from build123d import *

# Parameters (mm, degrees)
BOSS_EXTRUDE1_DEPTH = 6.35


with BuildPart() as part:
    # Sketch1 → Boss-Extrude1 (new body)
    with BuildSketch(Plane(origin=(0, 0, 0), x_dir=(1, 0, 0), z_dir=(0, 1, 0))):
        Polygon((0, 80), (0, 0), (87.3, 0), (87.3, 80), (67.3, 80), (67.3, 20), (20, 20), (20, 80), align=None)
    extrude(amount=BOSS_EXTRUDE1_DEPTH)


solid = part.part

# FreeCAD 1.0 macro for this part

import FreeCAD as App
import Part
import Sketcher

V = App.Vector
Q = App.Units.Quantity

doc = App.newDocument("Part")
params = doc.addObject("Spreadsheet::Sheet", "Params")
for row, (alias, value) in enumerate([
    ("sketch1_width", "20 mm"),
    ("sketch1_height", "80 mm"),
    ("sketch1_height2", "60 mm"),
    ("sketch1_width2", "87.3 mm"),
    ("pad1_length", "6.35 mm"),
], start=1):
    params.set(f"A{row}", alias)
    params.set(f"B{row}", "=" + value)
    params.setAlias(f"B{row}", alias)

body = doc.addObject("PartDesign::Body", "Body")

# Sketch on XZ plane
sketch1 = doc.addObject("Sketcher::SketchObject", "Sketch")
body.addObject(sketch1)
sketch1.AttachmentSupport = (doc.XZ_Plane, [""])
sketch1.MapMode = "FlatFace"
sketch1.addGeometry(Part.LineSegment(V(0, -80, 0), V(0, 0, 0)), False)
sketch1.addGeometry(Part.LineSegment(V(0, 0, 0), V(87.3, 0, 0)), False)
sketch1.addGeometry(Part.LineSegment(V(87.3, 0, 0), V(87.3, -80, 0)), False)
sketch1.addGeometry(Part.LineSegment(V(87.3, -80, 0), V(67.3, -80, 0)), False)
sketch1.addGeometry(Part.LineSegment(V(67.3, -80, 0), V(67.3, -20, 0)), False)
sketch1.addGeometry(Part.LineSegment(V(67.3, -20, 0), V(20, -20, 0)), False)
sketch1.addGeometry(Part.LineSegment(V(20, -20, 0), V(20, -80, 0)), False)
sketch1.addGeometry(Part.LineSegment(V(20, -80, 0), V(0, -80, 0)), False)
sketch1.addConstraint(Sketcher.Constraint("Coincident", 0, 2, 1, 1))
sketch1.addConstraint(Sketcher.Constraint("Coincident", 1, 2, 2, 1))
sketch1.addConstraint(Sketcher.Constraint("Coincident", 2, 2, 3, 1))
sketch1.addConstraint(Sketcher.Constraint("Coincident", 3, 2, 4, 1))
sketch1.addConstraint(Sketcher.Constraint("Coincident", 4, 2, 5, 1))
sketch1.addConstraint(Sketcher.Constraint("Coincident", 5, 2, 6, 1))
sketch1.addConstraint(Sketcher.Constraint("Coincident", 6, 2, 7, 1))
sketch1.addConstraint(Sketcher.Constraint("Coincident", 7, 2, 0, 1))
sketch1.addConstraint(Sketcher.Constraint("Vertical", 0))
sketch1.addConstraint(Sketcher.Constraint("Horizontal", 1))
sketch1.addConstraint(Sketcher.Constraint("Vertical", 2))
sketch1.addConstraint(Sketcher.Constraint("Horizontal", 3))
sketch1.addConstraint(Sketcher.Constraint("Vertical", 4))
sketch1.addConstraint(Sketcher.Constraint("Horizontal", 5))
sketch1.addConstraint(Sketcher.Constraint("Vertical", 6))
sketch1.addConstraint(Sketcher.Constraint("Horizontal", 7))
sketch1.addConstraint(Sketcher.Constraint("Coincident", 0, 2, -1, 1))
sketch1.addConstraint(Sketcher.Constraint("Horizontal", 3, 2, 6, 2))
sketch1.addConstraint(Sketcher.Constraint("Equal", 3, 7))
sketch1.addConstraint(Sketcher.Constraint("DistanceX", 3, 2, 3, 1, Q("20 mm")))
sketch1.addConstraint(Sketcher.Constraint("DistanceY", 0, 1, 0, 2, Q("80 mm")))
sketch1.addConstraint(Sketcher.Constraint("DistanceY", 4, 1, 4, 2, Q("60 mm")))
sketch1.addConstraint(Sketcher.Constraint("DistanceX", 1, 1, 1, 2, Q("87.3 mm")))
sketch1.setExpression("Constraints[19]", "Params.sketch1_width")
sketch1.setExpression("Constraints[20]", "Params.sketch1_height")
sketch1.setExpression("Constraints[21]", "Params.sketch1_height2")
sketch1.setExpression("Constraints[22]", "Params.sketch1_width2")
pad1 = doc.addObject("PartDesign::Pad", "Pad")
body.addObject(pad1)
pad1.Profile = sketch1
pad1.setExpression("Length", "Params.pad1_length")
pad1.Reversed = True

doc.recompute()
